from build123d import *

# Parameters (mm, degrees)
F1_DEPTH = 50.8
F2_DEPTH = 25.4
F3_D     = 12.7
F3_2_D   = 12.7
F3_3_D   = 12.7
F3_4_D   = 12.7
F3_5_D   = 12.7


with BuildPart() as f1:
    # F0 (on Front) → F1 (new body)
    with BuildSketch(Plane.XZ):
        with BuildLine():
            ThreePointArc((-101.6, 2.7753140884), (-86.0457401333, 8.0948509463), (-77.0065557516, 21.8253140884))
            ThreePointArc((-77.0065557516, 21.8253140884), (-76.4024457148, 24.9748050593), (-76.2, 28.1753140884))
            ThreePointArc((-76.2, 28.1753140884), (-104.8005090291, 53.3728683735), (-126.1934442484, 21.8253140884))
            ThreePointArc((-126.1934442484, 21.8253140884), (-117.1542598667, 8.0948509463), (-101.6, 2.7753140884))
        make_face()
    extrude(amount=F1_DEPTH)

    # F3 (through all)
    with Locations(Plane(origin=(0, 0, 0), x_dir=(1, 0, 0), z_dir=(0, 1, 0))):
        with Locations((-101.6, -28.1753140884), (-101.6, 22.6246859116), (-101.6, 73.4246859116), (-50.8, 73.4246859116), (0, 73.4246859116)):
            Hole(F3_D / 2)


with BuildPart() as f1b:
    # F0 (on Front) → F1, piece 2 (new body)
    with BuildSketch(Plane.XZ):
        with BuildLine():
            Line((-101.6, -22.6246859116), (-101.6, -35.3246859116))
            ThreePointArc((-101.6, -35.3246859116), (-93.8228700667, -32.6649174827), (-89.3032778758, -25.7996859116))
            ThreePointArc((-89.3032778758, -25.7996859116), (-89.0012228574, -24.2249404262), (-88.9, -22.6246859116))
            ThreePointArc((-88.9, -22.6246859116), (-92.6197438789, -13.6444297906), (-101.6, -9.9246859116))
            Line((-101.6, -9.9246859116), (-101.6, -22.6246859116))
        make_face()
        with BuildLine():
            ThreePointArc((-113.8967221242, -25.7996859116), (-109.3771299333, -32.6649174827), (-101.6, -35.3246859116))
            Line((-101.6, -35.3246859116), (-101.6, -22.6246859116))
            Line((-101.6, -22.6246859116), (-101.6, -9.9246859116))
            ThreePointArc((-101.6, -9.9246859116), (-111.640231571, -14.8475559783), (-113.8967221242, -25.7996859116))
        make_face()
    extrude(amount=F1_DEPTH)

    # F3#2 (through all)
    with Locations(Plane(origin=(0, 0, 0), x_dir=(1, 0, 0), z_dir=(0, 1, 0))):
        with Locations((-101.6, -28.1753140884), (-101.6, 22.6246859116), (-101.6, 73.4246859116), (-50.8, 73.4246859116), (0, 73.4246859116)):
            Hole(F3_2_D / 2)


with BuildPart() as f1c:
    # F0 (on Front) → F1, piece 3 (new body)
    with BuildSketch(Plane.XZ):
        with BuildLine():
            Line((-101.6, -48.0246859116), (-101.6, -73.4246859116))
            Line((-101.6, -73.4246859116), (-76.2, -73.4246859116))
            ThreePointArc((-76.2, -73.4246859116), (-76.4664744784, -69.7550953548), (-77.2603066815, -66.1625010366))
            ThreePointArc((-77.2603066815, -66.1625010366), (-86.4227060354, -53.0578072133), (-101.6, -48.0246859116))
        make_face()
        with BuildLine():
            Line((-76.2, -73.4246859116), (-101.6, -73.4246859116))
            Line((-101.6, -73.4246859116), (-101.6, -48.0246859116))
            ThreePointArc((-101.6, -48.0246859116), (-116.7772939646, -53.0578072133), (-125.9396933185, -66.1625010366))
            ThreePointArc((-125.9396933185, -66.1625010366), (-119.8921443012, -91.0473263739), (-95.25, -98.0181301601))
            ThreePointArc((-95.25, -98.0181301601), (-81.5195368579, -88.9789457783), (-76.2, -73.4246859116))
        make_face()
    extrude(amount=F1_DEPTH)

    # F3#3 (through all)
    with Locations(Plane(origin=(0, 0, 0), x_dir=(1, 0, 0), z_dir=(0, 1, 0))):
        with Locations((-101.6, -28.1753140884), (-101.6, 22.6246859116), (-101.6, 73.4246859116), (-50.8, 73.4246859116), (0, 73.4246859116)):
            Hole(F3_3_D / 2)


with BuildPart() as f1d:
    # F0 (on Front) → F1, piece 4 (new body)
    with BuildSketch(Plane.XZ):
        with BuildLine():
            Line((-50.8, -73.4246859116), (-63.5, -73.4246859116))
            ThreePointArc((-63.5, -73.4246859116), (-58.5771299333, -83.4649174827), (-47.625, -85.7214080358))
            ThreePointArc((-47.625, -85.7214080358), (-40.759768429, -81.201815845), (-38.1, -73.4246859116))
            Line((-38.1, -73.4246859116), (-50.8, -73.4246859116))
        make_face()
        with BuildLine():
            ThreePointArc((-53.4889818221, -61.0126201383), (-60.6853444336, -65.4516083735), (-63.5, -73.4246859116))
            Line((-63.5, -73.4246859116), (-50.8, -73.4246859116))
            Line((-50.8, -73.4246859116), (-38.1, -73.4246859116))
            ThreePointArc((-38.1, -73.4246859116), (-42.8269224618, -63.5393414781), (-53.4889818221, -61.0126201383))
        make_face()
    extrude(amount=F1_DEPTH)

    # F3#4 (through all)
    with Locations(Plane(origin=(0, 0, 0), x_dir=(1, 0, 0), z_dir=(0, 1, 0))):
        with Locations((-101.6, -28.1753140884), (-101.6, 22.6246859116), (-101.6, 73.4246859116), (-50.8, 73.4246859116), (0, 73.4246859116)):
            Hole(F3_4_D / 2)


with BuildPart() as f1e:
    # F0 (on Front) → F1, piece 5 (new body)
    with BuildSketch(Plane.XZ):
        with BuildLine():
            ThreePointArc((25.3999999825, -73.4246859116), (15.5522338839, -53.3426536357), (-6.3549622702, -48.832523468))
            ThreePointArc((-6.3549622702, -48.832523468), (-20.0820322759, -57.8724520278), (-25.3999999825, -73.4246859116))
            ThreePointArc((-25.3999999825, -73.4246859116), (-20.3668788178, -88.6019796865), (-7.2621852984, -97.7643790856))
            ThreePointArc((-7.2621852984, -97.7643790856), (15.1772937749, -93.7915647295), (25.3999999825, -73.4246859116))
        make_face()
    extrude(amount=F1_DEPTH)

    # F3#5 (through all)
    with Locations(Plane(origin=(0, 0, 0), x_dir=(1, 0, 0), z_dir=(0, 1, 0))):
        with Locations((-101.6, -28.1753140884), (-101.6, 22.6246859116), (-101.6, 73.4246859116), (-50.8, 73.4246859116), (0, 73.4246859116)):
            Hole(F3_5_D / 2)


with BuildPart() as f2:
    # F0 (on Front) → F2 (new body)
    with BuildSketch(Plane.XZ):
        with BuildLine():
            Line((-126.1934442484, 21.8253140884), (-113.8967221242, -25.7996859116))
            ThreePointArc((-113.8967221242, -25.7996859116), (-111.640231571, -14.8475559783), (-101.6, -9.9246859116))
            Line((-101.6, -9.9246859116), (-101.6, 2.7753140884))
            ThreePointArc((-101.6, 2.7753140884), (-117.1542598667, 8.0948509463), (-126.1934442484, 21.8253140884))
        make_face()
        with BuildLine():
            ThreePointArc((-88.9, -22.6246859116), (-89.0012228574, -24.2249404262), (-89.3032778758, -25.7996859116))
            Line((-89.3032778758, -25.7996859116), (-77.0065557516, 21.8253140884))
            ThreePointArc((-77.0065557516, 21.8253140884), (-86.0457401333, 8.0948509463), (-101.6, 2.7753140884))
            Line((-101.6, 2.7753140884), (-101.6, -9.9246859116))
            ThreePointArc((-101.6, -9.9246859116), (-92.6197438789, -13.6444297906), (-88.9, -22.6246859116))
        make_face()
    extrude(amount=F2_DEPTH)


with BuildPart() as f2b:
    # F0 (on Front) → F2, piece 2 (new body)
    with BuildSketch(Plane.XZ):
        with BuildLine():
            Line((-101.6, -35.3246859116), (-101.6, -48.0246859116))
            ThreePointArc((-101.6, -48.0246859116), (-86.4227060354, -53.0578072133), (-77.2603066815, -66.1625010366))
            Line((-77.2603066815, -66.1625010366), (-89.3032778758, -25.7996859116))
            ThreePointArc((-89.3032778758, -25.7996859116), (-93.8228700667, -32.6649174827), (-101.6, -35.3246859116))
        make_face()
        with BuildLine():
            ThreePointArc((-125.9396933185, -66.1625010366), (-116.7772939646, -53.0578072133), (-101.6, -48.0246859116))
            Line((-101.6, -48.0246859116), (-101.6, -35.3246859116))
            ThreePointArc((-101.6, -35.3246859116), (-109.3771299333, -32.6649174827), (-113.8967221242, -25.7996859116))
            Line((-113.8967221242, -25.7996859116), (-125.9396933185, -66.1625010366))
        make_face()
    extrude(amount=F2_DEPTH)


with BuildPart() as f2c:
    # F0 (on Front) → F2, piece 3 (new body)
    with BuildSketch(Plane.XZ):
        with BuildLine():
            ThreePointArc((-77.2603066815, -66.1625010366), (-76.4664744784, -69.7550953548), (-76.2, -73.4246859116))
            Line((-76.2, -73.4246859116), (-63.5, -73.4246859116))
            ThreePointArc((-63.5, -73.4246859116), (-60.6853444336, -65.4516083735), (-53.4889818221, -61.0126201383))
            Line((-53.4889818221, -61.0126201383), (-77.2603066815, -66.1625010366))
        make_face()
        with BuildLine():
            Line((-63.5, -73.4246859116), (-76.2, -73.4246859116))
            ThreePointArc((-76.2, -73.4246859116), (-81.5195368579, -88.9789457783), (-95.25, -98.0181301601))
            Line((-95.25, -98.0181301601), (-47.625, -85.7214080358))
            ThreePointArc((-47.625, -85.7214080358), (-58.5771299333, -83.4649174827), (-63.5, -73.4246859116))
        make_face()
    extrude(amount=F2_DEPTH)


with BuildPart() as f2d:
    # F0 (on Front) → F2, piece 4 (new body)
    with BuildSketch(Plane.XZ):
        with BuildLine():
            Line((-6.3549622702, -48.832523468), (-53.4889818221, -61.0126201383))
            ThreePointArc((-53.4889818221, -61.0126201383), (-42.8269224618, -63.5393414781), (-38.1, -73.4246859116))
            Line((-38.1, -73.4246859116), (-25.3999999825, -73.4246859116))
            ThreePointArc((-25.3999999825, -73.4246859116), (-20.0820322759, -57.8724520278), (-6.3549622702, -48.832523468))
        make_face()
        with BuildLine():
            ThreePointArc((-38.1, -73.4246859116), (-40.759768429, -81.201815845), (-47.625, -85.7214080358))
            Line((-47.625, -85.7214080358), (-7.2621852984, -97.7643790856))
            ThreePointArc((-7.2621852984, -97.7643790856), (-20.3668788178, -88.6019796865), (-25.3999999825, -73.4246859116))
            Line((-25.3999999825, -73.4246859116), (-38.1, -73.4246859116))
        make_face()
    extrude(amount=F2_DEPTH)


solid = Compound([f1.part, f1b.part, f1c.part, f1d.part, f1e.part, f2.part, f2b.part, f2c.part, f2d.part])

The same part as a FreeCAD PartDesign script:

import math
import FreeCAD as App
import Part
import Sketcher

V = App.Vector
Q = App.Units.Quantity

doc = App.newDocument("Part")
body = doc.addObject("PartDesign::Body", "Body")

sketch1 = body.newObject("Sketcher::SketchObject", "Sketch")
sketch1.AttachmentSupport = (doc.getObject("XZ_Plane"), [""])
sketch1.MapMode = "FlatFace"
sketch1.addGeometry([
    Part.ArcOfCircle(Part.Circle(V(-101.6, 28.175314, 0), V(0, 0, 1), 25.4), math.radians(-90), math.radians(-14.477512)),
    Part.ArcOfCircle(Part.Circle(V(-101.6, 28.175314, 0), V(0, 0, 1), 25.4), math.radians(-14.477512), math.radians(0)),
    Part.ArcOfCircle(Part.Circle(V(-101.6, 28.175314, 0), V(0, 0, 1), 25.4), math.radians(0), math.radians(194.477512)),
    Part.ArcOfCircle(Part.Circle(V(-101.6, 28.175314, 0), V(0, 0, 1), 25.4), math.radians(-165.522488), math.radians(-90)),
], False)
sketch1.addConstraint([
    Sketcher.Constraint("Tangent", 0, 2, 1, 1),
    Sketcher.Constraint("Tangent", 1, 2, 2, 1),
    Sketcher.Constraint("Tangent", 2, 2, 3, 1),
    Sketcher.Constraint("Tangent", 3, 2, 0, 1),
    Sketcher.Constraint("Equal", 0, 1),
    Sketcher.Constraint("Horizontal", 3, 3, 1, 2),
    Sketcher.Constraint("Horizontal", 0, 2, 2, 2),
    Sketcher.Constraint("Vertical", 2, 3, 3, 2),
    Sketcher.Constraint("Radius", 0, Q("1 in")),
    Sketcher.Constraint("DistanceX", 0, 3, -1, 1, Q("4 in")),
    Sketcher.Constraint("DistanceY", 0, 2, 1, 3, Q("0.25 in")),
    Sketcher.Constraint("DistanceY", -1, 1, 0, 3, Q("28.175314 mm")),
])
pad1 = body.newObject("PartDesign::Pad", "Pad")
pad1.Profile = sketch1
pad1.Length = Q("2 in")

sketch2 = body.newObject("Sketcher::SketchObject", "Sketch001")
sketch2.AttachmentSupport = (doc.getObject("XZ_Plane"), [""])
sketch2.MapMode = "FlatFace"
sketch2.addGeometry([
    Part.Circle(V(-101.6, 28.175314, 0), V(0, 0, 1), 6.35),
    Part.Circle(V(-101.6, -22.624686, 0), V(0, 0, 1), 6.35),
    Part.Circle(V(-101.6, -73.424686, 0), V(0, 0, 1), 6.35),
    Part.Circle(V(-50.8, -73.424686, 0), V(0, 0, 1), 6.35),
    Part.Circle(V(0, -73.424686, 0), V(0, 0, 1), 6.35),
], False)
sketch2.addConstraint([
    Sketcher.Constraint("Equal", 0, 1),
    Sketcher.Constraint("Equal", 1, 2),
    Sketcher.Constraint("Equal", 2, 3),
    Sketcher.Constraint("Equal", 3, 4),
    Sketcher.Constraint("PointOnObject", 4, 3, -2),
    Sketcher.Constraint("Horizontal", 2, 3, 3, 3),
    Sketcher.Constraint("Horizontal", 3, 3, 4, 3),
    Sketcher.Constraint("Vertical", 0, 3, 1, 3),
    Sketcher.Constraint("Vertical", 1, 3, 2, 3),
    Sketcher.Constraint("Diameter", 0, Q("0.5 in")),
    Sketcher.Constraint("DistanceX", 0, 3, -1, 1, Q("4 in")),
    Sketcher.Constraint("DistanceX", 3, 3, -1, 1, Q("2 in")),
    Sketcher.Constraint("DistanceY", 1, 3, 0, 3, Q("2 in")),
    Sketcher.Constraint("DistanceY", 2, 3, 1, 3, Q("2 in")),
    Sketcher.Constraint("DistanceY", -1, 1, 0, 3, Q("28.175314 mm")),
])
doc.recompute()
hole = body.newObject("PartDesign::Hole", "Hole")
hole.Profile = sketch2
hole.ThreadType = "None"
hole.Diameter = Q("0.5 in")
hole.DepthType = "ThroughAll"
hole.Reversed = True
body2 = doc.addObject("PartDesign::Body", "Body001")

sketch3 = body2.newObject("Sketcher::SketchObject", "Sketch002")
sketch3.AttachmentSupport = (doc.getObject("XZ_Plane001"), [""])
sketch3.MapMode = "FlatFace"
sketch3.addGeometry([
    Part.ArcOfCircle(Part.Circle(V(-101.6, -22.624686, 0), V(0, 0, 1), 12.7), math.radians(-90), math.radians(-14.477512)),
    Part.ArcOfCircle(Part.Circle(V(-101.6, -22.624686, 0), V(0, 0, 1), 12.7), math.radians(-14.477512), math.radians(0)),
    Part.ArcOfCircle(Part.Circle(V(-101.6, -22.624686, 0), V(0, 0, 1), 12.7), math.radians(0), math.radians(90)),
    Part.ArcOfCircle(Part.Circle(V(-101.6, -22.624686, 0), V(0, 0, 1), 12.7), math.radians(90), math.radians(194.477512)),
    Part.ArcOfCircle(Part.Circle(V(-101.6, -22.624686, 0), V(0, 0, 1), 12.7), math.radians(-165.522488), math.radians(-90)),
], False)
sketch3.addConstraint([
    Sketcher.Constraint("Tangent", 0, 2, 1, 1),
    Sketcher.Constraint("Tangent", 1, 2, 2, 1),
    Sketcher.Constraint("Tangent", 2, 2, 3, 1),
    Sketcher.Constraint("Tangent", 3, 2, 4, 1),
    Sketcher.Constraint("Tangent", 4, 2, 0, 1),
    Sketcher.Constraint("Coincident", 2, 3, 0, 3),
    Sketcher.Constraint("Horizontal", 4, 3, 1, 2),
    Sketcher.Constraint("Horizontal", 0, 2, 3, 2),
    Sketcher.Constraint("Vertical", 4, 3, 2, 2),
    Sketcher.Constraint("Vertical", 2, 2, 4, 2),
    Sketcher.Constraint("Radius", 0, Q("0.5 in")),
    Sketcher.Constraint("DistanceX", 0, 3, -1, 1, Q("4 in")),
    Sketcher.Constraint("DistanceY", 0, 2, 1, 3, Q("0.125 in")),
    Sketcher.Constraint("DistanceY", 0, 3, -1, 1, Q("22.624686 mm")),
])
pad2 = body2.newObject("PartDesign::Pad", "Pad001")
pad2.Profile = sketch3
pad2.Length = Q("2 in")

sketch4 = body2.newObject("Sketcher::SketchObject", "Sketch003")
sketch4.AttachmentSupport = (doc.getObject("XZ_Plane001"), [""])
sketch4.MapMode = "FlatFace"
sketch4.addGeometry([
    Part.Circle(V(-101.6, 28.175314, 0), V(0, 0, 1), 6.35),
    Part.Circle(V(-101.6, -22.624686, 0), V(0, 0, 1), 6.35),
    Part.Circle(V(-101.6, -73.424686, 0), V(0, 0, 1), 6.35),
    Part.Circle(V(-50.8, -73.424686, 0), V(0, 0, 1), 6.35),
    Part.Circle(V(0, -73.424686, 0), V(0, 0, 1), 6.35),
], False)
sketch4.addConstraint([
    Sketcher.Constraint("Equal", 0, 1),
    Sketcher.Constraint("Equal", 1, 2),
    Sketcher.Constraint("Equal", 2, 3),
    Sketcher.Constraint("Equal", 3, 4),
    Sketcher.Constraint("PointOnObject", 4, 3, -2),
    Sketcher.Constraint("Horizontal", 2, 3, 3, 3),
    Sketcher.Constraint("Horizontal", 3, 3, 4, 3),
    Sketcher.Constraint("Vertical", 0, 3, 1, 3),
    Sketcher.Constraint("Vertical", 1, 3, 2, 3),
    Sketcher.Constraint("Diameter", 0, Q("0.5 in")),
    Sketcher.Constraint("DistanceX", 0, 3, -1, 1, Q("4 in")),
    Sketcher.Constraint("DistanceX", 3, 3, -1, 1, Q("2 in")),
    Sketcher.Constraint("DistanceY", 1, 3, 0, 3, Q("2 in")),
    Sketcher.Constraint("DistanceY", 2, 3, 1, 3, Q("2 in")),
    Sketcher.Constraint("DistanceY", -1, 1, 0, 3, Q("28.175314 mm")),
])
doc.recompute()
hole2 = body2.newObject("PartDesign::Hole", "Hole001")
hole2.Profile = sketch4
hole2.ThreadType = "None"
hole2.Diameter = Q("0.5 in")
hole2.DepthType = "ThroughAll"
hole2.Reversed = True
body3 = doc.addObject("PartDesign::Body", "Body002")

sketch5 = body3.newObject("Sketcher::SketchObject", "Sketch004")
sketch5.AttachmentSupport = (doc.getObject("XZ_Plane002"), [""])
sketch5.MapMode = "FlatFace"
sketch5.addGeometry([
    Part.ArcOfCircle(Part.Circle(V(-101.6, -73.424686, 0), V(0, 0, 1), 25.4), math.radians(0), math.radians(16.613418)),
    Part.ArcOfCircle(Part.Circle(V(-101.6, -73.424686, 0), V(0, 0, 1), 25.4), math.radians(16.613418), math.radians(163.386582)),
    Part.ArcOfCircle(Part.Circle(V(-101.6, -73.424686, 0), V(0, 0, 1), 25.4), math.radians(163.386582), math.radians(284.477512)),
    Part.ArcOfCircle(Part.Circle(V(-101.6, -73.424686, 0), V(0, 0, 1), 25.4), math.radians(-75.522488), math.radians(0)),
], False)
sketch5.addConstraint([
    Sketcher.Constraint("Tangent", 0, 2, 1, 1),
    Sketcher.Constraint("Tangent", 1, 2, 2, 1),
    Sketcher.Constraint("Tangent", 2, 2, 3, 1),
    Sketcher.Constraint("Tangent", 3, 2, 0, 1),
    Sketcher.Constraint("Equal", 0, 1),
    Sketcher.Constraint("Horizontal", 0, 2, 1, 2),
    Sketcher.Constraint("Horizontal", 2, 3, 3, 2),
    Sketcher.Constraint("Radius", 0, Q("1 in")),
    Sketcher.Constraint("DistanceX", 0, 3, -1, 1, Q("4 in")),
    Sketcher.Constraint("DistanceX", 2, 2, -1, 1, Q("3.75 in")),
    Sketcher.Constraint("DistanceY", 0, 2, -1, 1, Q("66.162501 mm")),
    Sketcher.Constraint("DistanceY", 2, 2, -1, 1, Q("98.01813 mm")),
])
pad3 = body3.newObject("PartDesign::Pad", "Pad002")
pad3.Profile = sketch5
pad3.Length = Q("2 in")

sketch6 = body3.newObject("Sketcher::SketchObject", "Sketch005")
sketch6.AttachmentSupport = (doc.getObject("XZ_Plane002"), [""])
sketch6.MapMode = "FlatFace"
sketch6.addGeometry([
    Part.Circle(V(-101.6, 28.175314, 0), V(0, 0, 1), 6.35),
    Part.Circle(V(-101.6, -22.624686, 0), V(0, 0, 1), 6.35),
    Part.Circle(V(-101.6, -73.424686, 0), V(0, 0, 1), 6.35),
    Part.Circle(V(-50.8, -73.424686, 0), V(0, 0, 1), 6.35),
    Part.Circle(V(0, -73.424686, 0), V(0, 0, 1), 6.35),
], False)
sketch6.addConstraint([
    Sketcher.Constraint("Equal", 0, 1),
    Sketcher.Constraint("Equal", 1, 2),
    Sketcher.Constraint("Equal", 2, 3),
    Sketcher.Constraint("Equal", 3, 4),
    Sketcher.Constraint("PointOnObject", 4, 3, -2),
    Sketcher.Constraint("Horizontal", 2, 3, 3, 3),
    Sketcher.Constraint("Horizontal", 3, 3, 4, 3),
    Sketcher.Constraint("Vertical", 0, 3, 1, 3),
    Sketcher.Constraint("Vertical", 1, 3, 2, 3),
    Sketcher.Constraint("Diameter", 0, Q("0.5 in")),
    Sketcher.Constraint("DistanceX", 0, 3, -1, 1, Q("4 in")),
    Sketcher.Constraint("DistanceX", 3, 3, -1, 1, Q("2 in")),
    Sketcher.Constraint("DistanceY", 1, 3, 0, 3, Q("2 in")),
    Sketcher.Constraint("DistanceY", 2, 3, 1, 3, Q("2 in")),
    Sketcher.Constraint("DistanceY", -1, 1, 0, 3, Q("28.175314 mm")),
])
doc.recompute()
hole3 = body3.newObject("PartDesign::Hole", "Hole002")
hole3.Profile = sketch6
hole3.ThreadType = "None"
hole3.Diameter = Q("0.5 in")
hole3.DepthType = "ThroughAll"
hole3.Reversed = True
body4 = doc.addObject("PartDesign::Body", "Body003")

sketch7 = body4.newObject("Sketcher::SketchObject", "Sketch006")
sketch7.AttachmentSupport = (doc.getObject("XZ_Plane003"), [""])
sketch7.MapMode = "FlatFace"
sketch7.addGeometry([
    Part.ArcOfCircle(Part.Circle(V(-50.8, -73.424686, 0), V(0, 0, 1), 12.7), math.radians(-75.522488), math.radians(0)),
    Part.ArcOfCircle(Part.Circle(V(-50.8, -73.424686, 0), V(0, 0, 1), 12.7), math.radians(0), math.radians(102.223804)),
    Part.ArcOfCircle(Part.Circle(V(-50.8, -73.424686, 0), V(0, 0, 1), 12.7), math.radians(102.223804), math.radians(284.477512)),
], False)
sketch7.addConstraint([
    Sketcher.Constraint("Tangent", 0, 2, 1, 1),
    Sketcher.Constraint("Tangent", 1, 2, 2, 1),
    Sketcher.Constraint("Tangent", 2, 2, 0, 1),
    Sketcher.Constraint("Horizontal", 2, 3, 0, 2),
    Sketcher.Constraint("Radius", 0, Q("0.5 in")),
    Sketcher.Constraint("DistanceX", 0, 3, -1, 1, Q("2 in")),
    Sketcher.Constraint("DistanceX", 2, 2, -1, 1, Q("1.875 in")),
    Sketcher.Constraint("DistanceX", 1, 2, -1, 1, Q("53.488982 mm")),
    Sketcher.Constraint("DistanceY", 1, 2, -1, 1, Q("61.01262 mm")),
])
pad4 = body4.newObject("PartDesign::Pad", "Pad003")
pad4.Profile = sketch7
pad4.Length = Q("2 in")

sketch8 = body4.newObject("Sketcher::SketchObject", "Sketch007")
sketch8.AttachmentSupport = (doc.getObject("XZ_Plane003"), [""])
sketch8.MapMode = "FlatFace"
sketch8.addGeometry([
    Part.Circle(V(-101.6, 28.175314, 0), V(0, 0, 1), 6.35),
    Part.Circle(V(-101.6, -22.624686, 0), V(0, 0, 1), 6.35),
    Part.Circle(V(-101.6, -73.424686, 0), V(0, 0, 1), 6.35),
    Part.Circle(V(-50.8, -73.424686, 0), V(0, 0, 1), 6.35),
    Part.Circle(V(0, -73.424686, 0), V(0, 0, 1), 6.35),
], False)
sketch8.addConstraint([
    Sketcher.Constraint("Equal", 0, 1),
    Sketcher.Constraint("Equal", 1, 2),
    Sketcher.Constraint("Equal", 2, 3),
    Sketcher.Constraint("Equal", 3, 4),
    Sketcher.Constraint("PointOnObject", 4, 3, -2),
    Sketcher.Constraint("Horizontal", 2, 3, 3, 3),
    Sketcher.Constraint("Horizontal", 3, 3, 4, 3),
    Sketcher.Constraint("Vertical", 0, 3, 1, 3),
    Sketcher.Constraint("Vertical", 1, 3, 2, 3),
    Sketcher.Constraint("Diameter", 0, Q("0.5 in")),
    Sketcher.Constraint("DistanceX", 0, 3, -1, 1, Q("4 in")),
    Sketcher.Constraint("DistanceX", 3, 3, -1, 1, Q("2 in")),
    Sketcher.Constraint("DistanceY", 1, 3, 0, 3, Q("2 in")),
    Sketcher.Constraint("DistanceY", 2, 3, 1, 3, Q("2 in")),
    Sketcher.Constraint("DistanceY", -1, 1, 0, 3, Q("28.175314 mm")),
])
doc.recompute()
hole4 = body4.newObject("PartDesign::Hole", "Hole003")
hole4.Profile = sketch8
hole4.ThreadType = "None"
hole4.Diameter = Q("0.5 in")
hole4.DepthType = "ThroughAll"
hole4.Reversed = True
body5 = doc.addObject("PartDesign::Body", "Body004")

sketch9 = body5.newObject("Sketcher::SketchObject", "Sketch008")
sketch9.AttachmentSupport = (doc.getObject("XZ_Plane004"), [""])
sketch9.MapMode = "FlatFace"
sketch9.addGeometry([
    Part.ArcOfCircle(Part.Circle(V(0, -73.424686, 0), V(0, 0, 1), 25.4), math.radians(0), math.radians(104.489073)),
    Part.ArcOfCircle(Part.Circle(V(0, -73.424686, 0), V(0, 0, 1), 25.4), math.radians(104.489073), math.radians(180)),
    Part.ArcOfCircle(Part.Circle(V(0, -73.424686, 0), V(0, 0, 1), 25.4), math.radians(-180), math.radians(-106.613419)),
    Part.ArcOfCircle(Part.Circle(V(0, -73.424686, 0), V(0, 0, 1), 25.4), math.radians(-106.613419), math.radians(0)),
], False)
sketch9.addConstraint([
    Sketcher.Constraint("Tangent", 0, 2, 1, 1),
    Sketcher.Constraint("Tangent", 1, 2, 2, 1),
    Sketcher.Constraint("Tangent", 2, 2, 3, 1),
    Sketcher.Constraint("Tangent", 3, 2, 0, 1),
    Sketcher.Constraint("Equal", 0, 1),
    Sketcher.Constraint("Symmetric", 1, 2, 3, 2, -2),
    Sketcher.Constraint("Horizontal", 3, 3, 1, 2),
    Sketcher.Constraint("Radius", 0, Q("1 in")),
    Sketcher.Constraint("DistanceY", 2, 2, -1, 1, Q("97.764379 mm")),
    Sketcher.Constraint("DistanceY", 0, 3, -1, 1, Q("73.424686 mm")),
    Sketcher.Constraint("DistanceX", 0, 2, -1, 1, Q("6.354962 mm")),
])
pad5 = body5.newObject("PartDesign::Pad", "Pad004")
pad5.Profile = sketch9
pad5.Length = Q("2 in")

sketch10 = body5.newObject("Sketcher::SketchObject", "Sketch009")
sketch10.AttachmentSupport = (doc.getObject("XZ_Plane004"), [""])
sketch10.MapMode = "FlatFace"
sketch10.addGeometry([
    Part.Circle(V(-101.6, 28.175314, 0), V(0, 0, 1), 6.35),
    Part.Circle(V(-101.6, -22.624686, 0), V(0, 0, 1), 6.35),
    Part.Circle(V(-101.6, -73.424686, 0), V(0, 0, 1), 6.35),
    Part.Circle(V(-50.8, -73.424686, 0), V(0, 0, 1), 6.35),
    Part.Circle(V(0, -73.424686, 0), V(0, 0, 1), 6.35),
], False)
sketch10.addConstraint([
    Sketcher.Constraint("Equal", 0, 1),
    Sketcher.Constraint("Equal", 1, 2),
    Sketcher.Constraint("Equal", 2, 3),
    Sketcher.Constraint("Equal", 3, 4),
    Sketcher.Constraint("PointOnObject", 4, 3, -2),
    Sketcher.Constraint("Horizontal", 2, 3, 3, 3),
    Sketcher.Constraint("Horizontal", 3, 3, 4, 3),
    Sketcher.Constraint("Vertical", 0, 3, 1, 3),
    Sketcher.Constraint("Vertical", 1, 3, 2, 3),
    Sketcher.Constraint("Diameter", 0, Q("0.5 in")),
    Sketcher.Constraint("DistanceX", 0, 3, -1, 1, Q("4 in")),
    Sketcher.Constraint("DistanceX", 3, 3, -1, 1, Q("2 in")),
    Sketcher.Constraint("DistanceY", 1, 3, 0, 3, Q("2 in")),
    Sketcher.Constraint("DistanceY", 2, 3, 1, 3, Q("2 in")),
    Sketcher.Constraint("DistanceY", -1, 1, 0, 3, Q("28.175314 mm")),
])
doc.recompute()
hole5 = body5.newObject("PartDesign::Hole", "Hole004")
hole5.Profile = sketch10
hole5.ThreadType = "None"
hole5.Diameter = Q("0.5 in")
hole5.DepthType = "ThroughAll"
hole5.Reversed = True
body6 = doc.addObject("PartDesign::Body", "Body005")

sketch11 = body6.newObject("Sketcher::SketchObject", "Sketch010")
sketch11.AttachmentSupport = (doc.getObject("XZ_Plane005"), [""])
sketch11.MapMode = "FlatFace"
sketch11.addGeometry([
    Part.LineSegment(V(-126.193444, 21.825314, 0), V(-113.896722, -25.799686, 0)),
    Part.ArcOfCircle(Part.Circle(V(-101.6, -22.624686, 0), V(0, 0, 1), 12.7), math.radians(90), math.radians(194.477512)),
    Part.ArcOfCircle(Part.Circle(V(-101.6, -22.624686, 0), V(0, 0, 1), 12.7), math.radians(0), math.radians(90)),
    Part.ArcOfCircle(Part.Circle(V(-101.6, -22.624686, 0), V(0, 0, 1), 12.7), math.radians(-14.477512), math.radians(0)),
    Part.LineSegment(V(-89.303278, -25.799686, 0), V(-77.006556, 21.825314, 0)),
    Part.ArcOfCircle(Part.Circle(V(-101.6, 28.175314, 0), V(0, 0, 1), 25.4), math.radians(-90), math.radians(-14.477512)),
    Part.ArcOfCircle(Part.Circle(V(-101.6, 28.175314, 0), V(0, 0, 1), 25.4), math.radians(-165.522488), math.radians(-90)),
], False)
sketch11.addConstraint([
    Sketcher.Constraint("Tangent", 0, 2, 1, 2),
    Sketcher.Constraint("Tangent", 1, 1, 2, 2),
    Sketcher.Constraint("Tangent", 2, 1, 3, 2),
    Sketcher.Constraint("Tangent", 3, 1, 4, 1),
    Sketcher.Constraint("Tangent", 4, 2, 5, 2),
    Sketcher.Constraint("Tangent", 5, 1, 6, 2),
    Sketcher.Constraint("Tangent", 6, 1, 0, 1),
    Sketcher.Constraint("Coincident", 3, 3, 1, 3),
    Sketcher.Constraint("Equal", 5, 6),
    Sketcher.Constraint("Horizontal", 3, 3, 2, 1),
    Sketcher.Constraint("Horizontal", 0, 2, 3, 1),
    Sketcher.Constraint("Vertical", 6, 3, 1, 1),
    Sketcher.Constraint("Vertical", 1, 1, 5, 1),
    Sketcher.Constraint("Radius", 5, Q("1 in")),
    Sketcher.Constraint("Radius", 1, Q("0.5 in")),
    Sketcher.Constraint("DistanceX", 1, 3, -1, 1, Q("4 in")),
    Sketcher.Constraint("DistanceY", 1, 3, 5, 3, Q("2 in")),
    Sketcher.Constraint("DistanceY", 1, 3, -1, 1, Q("22.624686 mm")),
])
pad6 = body6.newObject("PartDesign::Pad", "Pad005")
pad6.Profile = sketch11
pad6.Length = Q("1 in")
body7 = doc.addObject("PartDesign::Body", "Body006")

sketch12 = body7.newObject("Sketcher::SketchObject", "Sketch011")
sketch12.AttachmentSupport = (doc.getObject("XZ_Plane006"), [""])
sketch12.MapMode = "FlatFace"
sketch12.addGeometry([
    Part.LineSegment(V(-77.260307, -66.162501, 0), V(-89.303278, -25.799686, 0)),
    Part.ArcOfCircle(Part.Circle(V(-101.6, -22.624686, 0), V(0, 0, 1), 12.7), math.radians(-90), math.radians(-14.477512)),
    Part.ArcOfCircle(Part.Circle(V(-101.6, -22.624686, 0), V(0, 0, 1), 12.7), math.radians(-165.522488), math.radians(-90)),
    Part.LineSegment(V(-113.896722, -25.799686, 0), V(-125.939693, -66.162501, 0)),
    Part.ArcOfCircle(Part.Circle(V(-101.6, -73.424686, 0), V(0, 0, 1), 25.4), math.radians(16.613418), math.radians(163.386582)),
], False)
sketch12.addConstraint([
    Sketcher.Constraint("Coincident", 0, 2, 1, 2),
    Sketcher.Constraint("Tangent", 1, 1, 2, 2),
    Sketcher.Constraint("Coincident", 2, 1, 3, 1),
    Sketcher.Constraint("Tangent", 3, 2, 4, 2),
    Sketcher.Constraint("Tangent", 4, 1, 0, 1),
    Sketcher.Constraint("Equal", 1, 2),
    Sketcher.Constraint("Horizontal", 0, 2, 2, 1),
    Sketcher.Constraint("Horizontal", 3, 2, 4, 1),
    Sketcher.Constraint("Vertical", 4, 3, 1, 1),
    Sketcher.Constraint("Radius", 4, Q("1 in")),
    Sketcher.Constraint("Radius", 1, Q("0.5 in")),
    Sketcher.Constraint("DistanceX", 1, 3, -1, 1, Q("4 in")),
    Sketcher.Constraint("DistanceY", 4, 3, 1, 3, Q("2 in")),
    Sketcher.Constraint("DistanceY", 0, 2, 1, 3, Q("0.125 in")),
    Sketcher.Constraint("DistanceY", 3, 2, -1, 1, Q("66.162501 mm")),
])
pad7 = body7.newObject("PartDesign::Pad", "Pad006")
pad7.Profile = sketch12
pad7.Length = Q("1 in")
body8 = doc.addObject("PartDesign::Body", "Body007")

sketch13 = body8.newObject("Sketcher::SketchObject", "Sketch012")
sketch13.AttachmentSupport = (doc.getObject("XZ_Plane007"), [""])
sketch13.MapMode = "FlatFace"
sketch13.addGeometry([
    Part.ArcOfCircle(Part.Circle(V(-101.6, -73.424686, 0), V(0, 0, 1), 25.4), math.radians(0), math.radians(16.613418)),
    Part.ArcOfCircle(Part.Circle(V(-101.6, -73.424686, 0), V(0, 0, 1), 25.4), math.radians(-75.522488), math.radians(0)),
    Part.LineSegment(V(-95.25, -98.01813, 0), V(-47.625, -85.721408, 0)),
    Part.ArcOfCircle(Part.Circle(V(-50.8, -73.424686, 0), V(0, 0, 1), 12.7), math.radians(102.223804), math.radians(284.477512)),
    Part.LineSegment(V(-53.488982, -61.01262, 0), V(-77.260307, -66.162501, 0)),
], False)
sketch13.addConstraint([
    Sketcher.Constraint("Tangent", 0, 1, 1, 2),
    Sketcher.Constraint("Tangent", 1, 1, 2, 1),
    Sketcher.Constraint("Tangent", 2, 2, 3, 2),
    Sketcher.Constraint("Tangent", 3, 1, 4, 1),
    Sketcher.Constraint("Coincident", 4, 2, 0, 2),
    Sketcher.Constraint("Equal", 0, 1),
    Sketcher.Constraint("Horizontal", 1, 3, 3, 3),
    Sketcher.Constraint("Horizontal", 3, 3, 0, 1),
    Sketcher.Constraint("Radius", 0, Q("1 in")),
    Sketcher.Constraint("Radius", 3, Q("0.5 in")),
    Sketcher.Constraint("DistanceX", 0, 3, -1, 1, Q("4 in")),
    Sketcher.Constraint("DistanceX", 3, 3, -1, 1, Q("2 in")),
    Sketcher.Constraint("DistanceY", 4, 2, -1, 1, Q("66.162501 mm")),
    Sketcher.Constraint("Distance", 4, Q("24.32277 mm")),
])
pad8 = body8.newObject("PartDesign::Pad", "Pad007")
pad8.Profile = sketch13
pad8.Length = Q("1 in")
body9 = doc.addObject("PartDesign::Body", "Body008")

sketch14 = body9.newObject("Sketcher::SketchObject", "Sketch013")
sketch14.AttachmentSupport = (doc.getObject("XZ_Plane008"), [""])
sketch14.MapMode = "FlatFace"
sketch14.addGeometry([
    Part.LineSegment(V(-6.354962, -48.832523, 0), V(-53.488982, -61.01262, 0)),
    Part.ArcOfCircle(Part.Circle(V(-50.8, -73.424686, 0), V(0, 0, 1), 12.7), math.radians(0), math.radians(102.223804)),
    Part.ArcOfCircle(Part.Circle(V(-50.8, -73.424686, 0), V(0, 0, 1), 12.7), math.radians(-75.522488), math.radians(0)),
    Part.LineSegment(V(-47.625, -85.721408, 0), V(-7.262185, -97.764379, 0)),
    Part.ArcOfCircle(Part.Circle(V(0, -73.424686, 0), V(0, 0, 1), 25.4), math.radians(-180), math.radians(-106.613419)),
    Part.ArcOfCircle(Part.Circle(V(0, -73.424686, 0), V(0, 0, 1), 25.4), math.radians(104.489073), math.radians(180)),
], False)
sketch14.addConstraint([
    Sketcher.Constraint("Coincident", 0, 2, 1, 2),
    Sketcher.Constraint("Tangent", 1, 1, 2, 2),
    Sketcher.Constraint("Coincident", 2, 1, 3, 1),
    Sketcher.Constraint("Tangent", 3, 2, 4, 2),
    Sketcher.Constraint("Tangent", 4, 1, 5, 2),
    Sketcher.Constraint("Tangent", 5, 1, 0, 1),
    Sketcher.Constraint("Equal", 1, 2),
    Sketcher.Constraint("Equal", 4, 5),
    Sketcher.Constraint("PointOnObject", 4, 3, -2),
    Sketcher.Constraint("Horizontal", 2, 3, 4, 3),
    Sketcher.Constraint("Horizontal", 5, 3, 1, 1),
    Sketcher.Constraint("Horizontal", 1, 1, 4, 1),
    Sketcher.Constraint("Radius", 4, Q("1 in")),
    Sketcher.Constraint("Radius", 1, Q("0.5 in")),
    Sketcher.Constraint("DistanceX", 1, 3, -1, 1, Q("2 in")),
    Sketcher.Constraint("DistanceX", 2, 1, -1, 1, Q("1.875 in")),
    Sketcher.Constraint("DistanceX", 0, 2, -1, 1, Q("53.488982 mm")),
    Sketcher.Constraint("DistanceY", 0, 2, -1, 1, Q("61.01262 mm")),
])
pad9 = body9.newObject("PartDesign::Pad", "Pad008")
pad9.Profile = sketch14
pad9.Length = Q("1 in")

doc.recompute()
